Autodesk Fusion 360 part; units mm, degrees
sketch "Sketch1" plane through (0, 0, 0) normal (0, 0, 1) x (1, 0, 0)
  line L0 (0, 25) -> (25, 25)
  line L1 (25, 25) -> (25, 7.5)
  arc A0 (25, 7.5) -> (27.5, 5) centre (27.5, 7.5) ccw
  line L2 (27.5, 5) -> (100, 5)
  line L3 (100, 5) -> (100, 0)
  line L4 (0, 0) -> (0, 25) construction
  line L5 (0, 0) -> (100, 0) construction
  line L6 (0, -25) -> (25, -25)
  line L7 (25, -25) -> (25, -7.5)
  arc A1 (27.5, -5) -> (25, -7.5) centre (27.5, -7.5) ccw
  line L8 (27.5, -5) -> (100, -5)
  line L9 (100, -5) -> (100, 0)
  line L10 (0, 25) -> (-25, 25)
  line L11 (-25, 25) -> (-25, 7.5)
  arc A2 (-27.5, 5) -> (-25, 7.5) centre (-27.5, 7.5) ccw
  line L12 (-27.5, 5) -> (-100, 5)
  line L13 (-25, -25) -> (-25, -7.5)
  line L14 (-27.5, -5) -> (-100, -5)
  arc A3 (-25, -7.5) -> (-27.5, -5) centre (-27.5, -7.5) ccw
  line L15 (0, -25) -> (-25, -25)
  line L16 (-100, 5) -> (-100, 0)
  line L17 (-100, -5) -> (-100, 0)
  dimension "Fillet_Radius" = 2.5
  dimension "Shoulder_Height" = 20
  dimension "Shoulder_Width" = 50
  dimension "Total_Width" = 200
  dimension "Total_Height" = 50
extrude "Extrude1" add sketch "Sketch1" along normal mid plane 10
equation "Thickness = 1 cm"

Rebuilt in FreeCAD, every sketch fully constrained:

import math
import FreeCAD as App
import Part
import Sketcher
Q = App.Units.Quantity

doc = App.newDocument("Part")
params = doc.addObject("Spreadsheet::Sheet", "Params")
for row, (alias, value) in enumerate([
    ("sketch1_radius", "2.5 mm"),
    ("sketch1_width", "50 mm"),
    ("sketch1_height", "10 mm"),
    ("sketch1_width2", "72.5 mm"),
    ("pad1_length", "10 mm"),
], start=1):
    params.set(f"A{row}", alias)
    params.set(f"B{row}", "=" + value)
    params.setAlias(f"B{row}", alias)

body = doc.addObject("PartDesign::Body", "Body")

# Sketch on XY plane
sketch1 = body.newObject("Sketcher::SketchObject", "Sketch")
sketch1.AttachmentSupport = (doc.getObject("XY_Plane"), [""])
sketch1.MapMode = "FlatFace"
sketch1.addGeometry(Part.LineSegment(App.Vector(25, 25, 0), App.Vector(-25, 25, 0)), False)
sketch1.addGeometry(Part.LineSegment(App.Vector(-25, 25, 0), App.Vector(-25, 7.5, 0)), False)
sketch1.addGeometry(Part.ArcOfCircle(Part.Circle(App.Vector(-27.5, 7.5, 0), App.Vector(0, 0, 1), 2.5), math.radians(-90), math.radians(0)), False)
sketch1.addGeometry(Part.LineSegment(App.Vector(-27.5, 5, 0), App.Vector(-100, 5, 0)), False)
sketch1.addGeometry(Part.LineSegment(App.Vector(-100, 5, 0), App.Vector(-100, -5, 0)), False)
sketch1.addGeometry(Part.LineSegment(App.Vector(-100, -5, 0), App.Vector(-27.5, -5, 0)), False)
sketch1.addGeometry(Part.ArcOfCircle(Part.Circle(App.Vector(-27.5, -7.5, 0), App.Vector(0, 0, 1), 2.5), math.radians(0), math.radians(90)), False)
sketch1.addGeometry(Part.LineSegment(App.Vector(-25, -7.5, 0), App.Vector(-25, -25, 0)), False)
sketch1.addGeometry(Part.LineSegment(App.Vector(-25, -25, 0), App.Vector(25, -25, 0)), False)
sketch1.addGeometry(Part.LineSegment(App.Vector(25, -25, 0), App.Vector(25, -7.5, 0)), False)
sketch1.addGeometry(Part.ArcOfCircle(Part.Circle(App.Vector(27.5, -7.5, 0), App.Vector(0, 0, 1), 2.5), math.radians(90), math.radians(180)), False)
sketch1.addGeometry(Part.LineSegment(App.Vector(27.5, -5, 0), App.Vector(100, -5, 0)), False)
sketch1.addGeometry(Part.LineSegment(App.Vector(100, -5, 0), App.Vector(100, 5, 0)), False)
sketch1.addGeometry(Part.LineSegment(App.Vector(100, 5, 0), App.Vector(27.5, 5, 0)), False)
sketch1.addGeometry(Part.ArcOfCircle(Part.Circle(App.Vector(27.5, 7.5, 0), App.Vector(0, 0, 1), 2.5), math.radians(180), math.radians(270)), False)
sketch1.addGeometry(Part.LineSegment(App.Vector(25, 7.5, 0), App.Vector(25, 25, 0)), False)
sketch1.addConstraint(Sketcher.Constraint("Coincident", 0, 2, 1, 1))
sketch1.addConstraint(Sketcher.Constraint("Tangent", 1, 2, 2, 2))
sketch1.addConstraint(Sketcher.Constraint("Tangent", 2, 1, 3, 1))
sketch1.addConstraint(Sketcher.Constraint("Coincident", 3, 2, 4, 1))
sketch1.addConstraint(Sketcher.Constraint("Coincident", 4, 2, 5, 1))
sketch1.addConstraint(Sketcher.Constraint("Tangent", 5, 2, 6, 2))
sketch1.addConstraint(Sketcher.Constraint("Tangent", 6, 1, 7, 1))
sketch1.addConstraint(Sketcher.Constraint("Coincident", 7, 2, 8, 1))
sketch1.addConstraint(Sketcher.Constraint("Coincident", 8, 2, 9, 1))
sketch1.addConstraint(Sketcher.Constraint("Tangent", 9, 2, 10, 2))
sketch1.addConstraint(Sketcher.Constraint("Tangent", 10, 1, 11, 1))
sketch1.addConstraint(Sketcher.Constraint("Coincident", 11, 2, 12, 1))
sketch1.addConstraint(Sketcher.Constraint("Coincident", 12, 2, 13, 1))
sketch1.addConstraint(Sketcher.Constraint("Tangent", 13, 2, 14, 2))
sketch1.addConstraint(Sketcher.Constraint("Tangent", 14, 1, 15, 1))
sketch1.addConstraint(Sketcher.Constraint("Coincident", 15, 2, 0, 1))
sketch1.addConstraint(Sketcher.Constraint("Horizontal", 0))
sketch1.addConstraint(Sketcher.Constraint("Vertical", 1))
sketch1.addConstraint(Sketcher.Constraint("Horizontal", 3))
sketch1.addConstraint(Sketcher.Constraint("Vertical", 4))
sketch1.addConstraint(Sketcher.Constraint("Horizontal", 5))
sketch1.addConstraint(Sketcher.Constraint("Vertical", 7))
sketch1.addConstraint(Sketcher.Constraint("Horizontal", 8))
sketch1.addConstraint(Sketcher.Constraint("Vertical", 9))
sketch1.addConstraint(Sketcher.Constraint("Horizontal", 11))
sketch1.addConstraint(Sketcher.Constraint("Vertical", 12))
sketch1.addConstraint(Sketcher.Constraint("Horizontal", 13))
sketch1.addConstraint(Sketcher.Constraint("Vertical", 15))
sketch1.addConstraint(Sketcher.Constraint("Equal", 2, 6))
sketch1.addConstraint(Sketcher.Constraint("Equal", 6, 10))
sketch1.addConstraint(Sketcher.Constraint("Equal", 10, 14))
sketch1.addConstraint(Sketcher.Constraint("Symmetric", 2, 3, 10, 3, -1, 1))
sketch1.addConstraint(Sketcher.Constraint("Symmetric", 6, 3, 14, 3, -1, 1))
sketch1.addConstraint(Sketcher.Constraint("Symmetric", 6, 3, 10, 3, -2))
sketch1.addConstraint(Sketcher.Constraint("Equal", 5, 11))
sketch1.addConstraint(Sketcher.Constraint("Equal", 1, 7))
sketch1.addConstraint(Sketcher.Constraint("Radius", 2, Q("2.5 mm")))
sketch1.addConstraint(Sketcher.Constraint("DistanceX", 0, 2, 0, 1, Q("50 mm")))
sketch1.addConstraint(Sketcher.Constraint("DistanceY", 2, 1, 0, 2, Q("20 mm")))
sketch1.addConstraint(Sketcher.Constraint("DistanceY", 4, 2, 4, 1, Q("10 mm")))
sketch1.addConstraint(Sketcher.Constraint("DistanceX", 3, 2, 3, 1, Q("72.5 mm")))
sketch1.setExpression("Constraints[36]", "Params.sketch1_radius")
sketch1.setExpression("Constraints[37]", "Params.sketch1_width")
sketch1.setExpression("Constraints[39]", "Params.sketch1_height")
sketch1.setExpression("Constraints[40]", "Params.sketch1_width2")
pad1 = body.newObject("PartDesign::Pad", "Pad")
pad1.Profile = sketch1
pad1.setExpression("Length", "Params.pad1_length")
pad1.Midplane = True

doc.recompute()
